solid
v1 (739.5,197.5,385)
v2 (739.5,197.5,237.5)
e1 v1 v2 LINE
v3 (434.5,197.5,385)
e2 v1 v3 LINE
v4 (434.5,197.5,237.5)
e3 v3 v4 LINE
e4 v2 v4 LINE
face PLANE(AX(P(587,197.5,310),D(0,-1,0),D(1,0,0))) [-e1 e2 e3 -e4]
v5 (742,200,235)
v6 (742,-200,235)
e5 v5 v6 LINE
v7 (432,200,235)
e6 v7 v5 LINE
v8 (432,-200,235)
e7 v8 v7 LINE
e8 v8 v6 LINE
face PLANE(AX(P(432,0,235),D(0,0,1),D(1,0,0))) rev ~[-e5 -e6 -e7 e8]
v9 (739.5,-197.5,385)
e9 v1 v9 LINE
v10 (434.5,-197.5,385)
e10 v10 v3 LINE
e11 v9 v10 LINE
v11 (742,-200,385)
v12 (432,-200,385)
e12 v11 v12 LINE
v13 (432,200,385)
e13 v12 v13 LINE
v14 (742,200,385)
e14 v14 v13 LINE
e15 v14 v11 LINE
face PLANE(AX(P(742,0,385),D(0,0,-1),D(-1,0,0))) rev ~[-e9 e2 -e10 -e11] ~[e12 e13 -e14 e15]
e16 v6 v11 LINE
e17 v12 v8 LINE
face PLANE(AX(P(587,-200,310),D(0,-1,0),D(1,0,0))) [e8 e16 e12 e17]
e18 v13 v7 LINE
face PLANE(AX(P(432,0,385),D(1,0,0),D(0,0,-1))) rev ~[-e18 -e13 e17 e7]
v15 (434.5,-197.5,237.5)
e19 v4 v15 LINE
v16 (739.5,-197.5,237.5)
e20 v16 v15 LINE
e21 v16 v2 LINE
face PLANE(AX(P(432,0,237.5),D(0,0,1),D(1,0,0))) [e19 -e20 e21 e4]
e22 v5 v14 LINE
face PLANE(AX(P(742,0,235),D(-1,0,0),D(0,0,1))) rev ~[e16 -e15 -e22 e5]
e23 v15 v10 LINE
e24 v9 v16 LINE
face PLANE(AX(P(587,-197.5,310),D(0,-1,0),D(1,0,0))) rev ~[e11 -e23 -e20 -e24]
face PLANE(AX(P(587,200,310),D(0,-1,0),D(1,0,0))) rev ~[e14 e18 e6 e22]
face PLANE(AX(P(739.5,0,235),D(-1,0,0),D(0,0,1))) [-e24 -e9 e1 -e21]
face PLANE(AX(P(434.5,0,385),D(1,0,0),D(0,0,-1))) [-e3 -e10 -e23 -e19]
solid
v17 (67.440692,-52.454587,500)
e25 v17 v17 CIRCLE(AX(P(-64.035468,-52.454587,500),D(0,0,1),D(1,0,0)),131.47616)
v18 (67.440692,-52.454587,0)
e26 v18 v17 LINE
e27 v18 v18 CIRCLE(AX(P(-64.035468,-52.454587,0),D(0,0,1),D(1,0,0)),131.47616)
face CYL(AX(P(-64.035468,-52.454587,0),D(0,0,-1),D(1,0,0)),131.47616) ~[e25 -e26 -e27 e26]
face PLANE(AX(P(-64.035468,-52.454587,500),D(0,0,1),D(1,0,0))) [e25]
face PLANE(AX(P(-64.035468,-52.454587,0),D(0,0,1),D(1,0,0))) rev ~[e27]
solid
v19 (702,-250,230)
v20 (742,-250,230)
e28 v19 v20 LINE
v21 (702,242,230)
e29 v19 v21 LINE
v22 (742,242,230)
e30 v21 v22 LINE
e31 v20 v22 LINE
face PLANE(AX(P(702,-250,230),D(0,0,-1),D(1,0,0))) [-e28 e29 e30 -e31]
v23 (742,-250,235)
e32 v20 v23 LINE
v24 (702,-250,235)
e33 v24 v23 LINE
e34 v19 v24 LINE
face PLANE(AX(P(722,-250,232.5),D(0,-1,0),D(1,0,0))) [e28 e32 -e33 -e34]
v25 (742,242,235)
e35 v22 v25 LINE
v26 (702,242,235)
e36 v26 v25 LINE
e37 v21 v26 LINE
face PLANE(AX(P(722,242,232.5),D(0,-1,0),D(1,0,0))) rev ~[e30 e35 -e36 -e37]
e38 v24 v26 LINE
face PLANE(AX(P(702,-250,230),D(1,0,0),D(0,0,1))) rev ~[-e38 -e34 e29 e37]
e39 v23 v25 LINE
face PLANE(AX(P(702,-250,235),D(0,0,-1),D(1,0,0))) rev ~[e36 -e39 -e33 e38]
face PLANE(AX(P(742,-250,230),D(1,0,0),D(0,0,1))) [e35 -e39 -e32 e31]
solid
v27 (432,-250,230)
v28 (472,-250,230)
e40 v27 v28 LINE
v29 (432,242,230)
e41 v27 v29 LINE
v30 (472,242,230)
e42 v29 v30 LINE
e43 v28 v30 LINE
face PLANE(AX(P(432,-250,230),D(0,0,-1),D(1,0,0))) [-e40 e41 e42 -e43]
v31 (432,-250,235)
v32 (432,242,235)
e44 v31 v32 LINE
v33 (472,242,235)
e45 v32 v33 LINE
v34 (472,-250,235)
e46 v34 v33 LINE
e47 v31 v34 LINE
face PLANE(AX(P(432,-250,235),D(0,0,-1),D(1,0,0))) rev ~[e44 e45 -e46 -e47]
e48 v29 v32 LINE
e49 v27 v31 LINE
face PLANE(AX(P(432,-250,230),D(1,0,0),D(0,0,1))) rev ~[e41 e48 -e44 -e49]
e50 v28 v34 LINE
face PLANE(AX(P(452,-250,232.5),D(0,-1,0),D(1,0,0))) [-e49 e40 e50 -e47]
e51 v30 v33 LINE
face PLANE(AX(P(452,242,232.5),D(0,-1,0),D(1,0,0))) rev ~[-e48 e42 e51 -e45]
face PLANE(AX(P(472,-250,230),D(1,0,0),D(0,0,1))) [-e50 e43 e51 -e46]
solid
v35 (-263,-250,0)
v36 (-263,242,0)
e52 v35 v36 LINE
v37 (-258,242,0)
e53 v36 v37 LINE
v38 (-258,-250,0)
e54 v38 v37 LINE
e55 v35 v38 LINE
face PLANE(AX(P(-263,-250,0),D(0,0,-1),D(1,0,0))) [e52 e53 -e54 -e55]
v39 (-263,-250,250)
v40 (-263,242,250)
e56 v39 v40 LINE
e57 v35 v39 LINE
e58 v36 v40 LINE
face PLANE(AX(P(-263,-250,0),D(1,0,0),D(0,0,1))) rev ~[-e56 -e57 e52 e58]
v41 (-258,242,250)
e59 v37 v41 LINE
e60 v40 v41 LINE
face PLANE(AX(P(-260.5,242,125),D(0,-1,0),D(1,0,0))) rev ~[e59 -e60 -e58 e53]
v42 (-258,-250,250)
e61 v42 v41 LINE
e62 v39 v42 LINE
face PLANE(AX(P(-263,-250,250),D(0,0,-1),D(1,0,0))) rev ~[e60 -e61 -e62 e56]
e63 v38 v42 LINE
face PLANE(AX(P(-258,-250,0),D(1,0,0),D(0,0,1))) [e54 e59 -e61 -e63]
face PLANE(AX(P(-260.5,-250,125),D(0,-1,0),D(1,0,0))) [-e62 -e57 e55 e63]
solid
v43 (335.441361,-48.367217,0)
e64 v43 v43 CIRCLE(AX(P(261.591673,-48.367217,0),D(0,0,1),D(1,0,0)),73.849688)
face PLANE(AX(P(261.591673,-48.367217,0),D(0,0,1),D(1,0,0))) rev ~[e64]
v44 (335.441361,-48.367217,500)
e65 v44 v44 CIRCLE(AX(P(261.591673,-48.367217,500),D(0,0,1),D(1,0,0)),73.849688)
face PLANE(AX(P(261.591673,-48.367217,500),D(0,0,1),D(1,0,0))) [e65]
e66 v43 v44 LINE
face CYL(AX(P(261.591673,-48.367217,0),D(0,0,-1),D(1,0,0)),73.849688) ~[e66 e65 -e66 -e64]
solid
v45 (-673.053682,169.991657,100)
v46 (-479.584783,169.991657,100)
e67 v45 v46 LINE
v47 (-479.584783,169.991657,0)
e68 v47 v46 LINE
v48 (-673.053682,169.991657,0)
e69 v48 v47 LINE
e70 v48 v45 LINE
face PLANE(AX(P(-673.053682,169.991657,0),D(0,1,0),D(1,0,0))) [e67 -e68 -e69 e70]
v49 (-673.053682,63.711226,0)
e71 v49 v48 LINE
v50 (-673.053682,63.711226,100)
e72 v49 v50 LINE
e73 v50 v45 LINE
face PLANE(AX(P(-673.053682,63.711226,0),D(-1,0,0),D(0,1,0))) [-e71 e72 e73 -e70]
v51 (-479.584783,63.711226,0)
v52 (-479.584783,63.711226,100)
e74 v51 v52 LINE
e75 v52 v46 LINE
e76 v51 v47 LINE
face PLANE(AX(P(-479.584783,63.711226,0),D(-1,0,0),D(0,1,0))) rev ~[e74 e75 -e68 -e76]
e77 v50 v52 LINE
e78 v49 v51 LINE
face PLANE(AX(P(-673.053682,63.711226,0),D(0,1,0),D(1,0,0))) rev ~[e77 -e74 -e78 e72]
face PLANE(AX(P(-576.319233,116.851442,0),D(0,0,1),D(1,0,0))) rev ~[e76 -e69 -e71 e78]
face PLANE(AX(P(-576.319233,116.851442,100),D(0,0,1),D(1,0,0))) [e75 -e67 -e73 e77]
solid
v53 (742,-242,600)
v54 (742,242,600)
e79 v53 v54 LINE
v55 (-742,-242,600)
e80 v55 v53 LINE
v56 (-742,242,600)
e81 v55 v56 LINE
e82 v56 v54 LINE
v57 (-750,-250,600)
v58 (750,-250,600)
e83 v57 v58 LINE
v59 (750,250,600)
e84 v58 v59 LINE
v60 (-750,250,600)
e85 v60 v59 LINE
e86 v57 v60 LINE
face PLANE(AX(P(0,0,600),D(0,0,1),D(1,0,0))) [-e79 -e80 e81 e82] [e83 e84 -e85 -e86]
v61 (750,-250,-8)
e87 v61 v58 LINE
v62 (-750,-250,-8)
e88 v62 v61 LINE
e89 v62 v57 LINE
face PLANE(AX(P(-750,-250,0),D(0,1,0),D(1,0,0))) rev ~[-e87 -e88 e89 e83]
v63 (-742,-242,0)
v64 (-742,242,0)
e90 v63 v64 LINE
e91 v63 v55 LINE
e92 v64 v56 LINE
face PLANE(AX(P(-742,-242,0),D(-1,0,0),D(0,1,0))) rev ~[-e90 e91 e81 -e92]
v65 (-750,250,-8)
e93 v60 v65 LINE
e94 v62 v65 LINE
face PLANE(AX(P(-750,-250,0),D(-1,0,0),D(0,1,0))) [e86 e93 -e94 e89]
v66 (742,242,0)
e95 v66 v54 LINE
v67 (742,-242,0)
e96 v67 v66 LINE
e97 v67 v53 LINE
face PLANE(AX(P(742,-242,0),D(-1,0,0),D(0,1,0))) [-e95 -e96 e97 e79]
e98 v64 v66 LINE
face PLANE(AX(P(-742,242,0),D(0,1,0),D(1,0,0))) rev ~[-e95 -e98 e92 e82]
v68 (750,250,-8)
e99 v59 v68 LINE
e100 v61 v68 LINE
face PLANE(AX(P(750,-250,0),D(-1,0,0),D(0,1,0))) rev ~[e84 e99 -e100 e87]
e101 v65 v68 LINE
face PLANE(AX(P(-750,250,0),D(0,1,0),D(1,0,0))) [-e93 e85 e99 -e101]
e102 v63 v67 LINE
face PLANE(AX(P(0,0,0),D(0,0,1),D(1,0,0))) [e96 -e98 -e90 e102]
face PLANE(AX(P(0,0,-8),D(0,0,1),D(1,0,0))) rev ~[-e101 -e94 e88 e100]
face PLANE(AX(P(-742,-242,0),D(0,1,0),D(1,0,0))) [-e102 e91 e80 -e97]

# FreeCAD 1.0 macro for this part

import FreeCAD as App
import Part
import Sketcher
Q = App.Units.Quantity


def faces_at(feature, points):
    """Names of the faces that lie closest to the given points."""
    faces = feature.Shape.Faces
    near = lambda p: min(range(len(faces)), key=lambda i: faces[i].distToShape(Part.Vertex(*p))[0])
    return sorted({f"Face{near(p) + 1}" for p in points})

doc = App.newDocument("Part")
body = doc.addObject("PartDesign::Body", "Body")

sketch1 = doc.addObject("Sketcher::SketchObject", "Sketch")
body.addObject(sketch1)
sketch1.AttachmentSupport = (doc.XY_Plane, [""])
sketch1.MapMode = "FlatFace"
sketch1.addGeometry([
    Part.LineSegment(App.Vector(-750, 250, 0), App.Vector(-750, -250, 0)),
    Part.LineSegment(App.Vector(-750, -250, 0), App.Vector(750, -250, 0)),
    Part.LineSegment(App.Vector(750, -250, 0), App.Vector(750, 250, 0)),
    Part.LineSegment(App.Vector(750, 250, 0), App.Vector(-750, 250, 0)),
], False)
sketch1.addConstraint([
    Sketcher.Constraint("Coincident", 0, 2, 1, 1),
    Sketcher.Constraint("Coincident", 1, 2, 2, 1),
    Sketcher.Constraint("Coincident", 2, 2, 3, 1),
    Sketcher.Constraint("Coincident", 3, 2, 0, 1),
    Sketcher.Constraint("Vertical", 0),
    Sketcher.Constraint("Horizontal", 1),
    Sketcher.Constraint("Vertical", 2),
    Sketcher.Constraint("Horizontal", 3),
    Sketcher.Constraint("Symmetric", 0, 2, 2, 2, -1, 1),
    Sketcher.Constraint("DistanceX", 1, 1, 1, 2, Q("1500 mm")),
    Sketcher.Constraint("DistanceY", 0, 2, 0, 1, Q("500 mm")),
])
pad1 = doc.addObject("PartDesign::Pad", "Pad")
body.addObject(pad1)
pad1.Profile = sketch1
pad1.Length = 8
pad1.Reversed = True
body2 = doc.addObject("PartDesign::Body", "Body001")

sketch2 = doc.addObject("Sketcher::SketchObject", "Sketch001")
body2.addObject(sketch2)
sketch2.AttachmentSupport = (doc.getObject("XY_Plane001"), [""])
sketch2.MapMode = "FlatFace"
sketch2.addGeometry([
    Part.LineSegment(App.Vector(-750, 250, 0), App.Vector(-750, -250, 0)),
    Part.LineSegment(App.Vector(-750, -250, 0), App.Vector(750, -250, 0)),
    Part.LineSegment(App.Vector(750, -250, 0), App.Vector(750, 250, 0)),
    Part.LineSegment(App.Vector(750, 250, 0), App.Vector(-750, 250, 0)),
    Part.LineSegment(App.Vector(742, -242, 0), App.Vector(-742, -242, 0)),
    Part.LineSegment(App.Vector(-742, -242, 0), App.Vector(-742, 242, 0)),
    Part.LineSegment(App.Vector(-742, 242, 0), App.Vector(742, 242, 0)),
    Part.LineSegment(App.Vector(742, 242, 0), App.Vector(742, -242, 0)),
], False)
sketch2.addConstraint([
    Sketcher.Constraint("Coincident", 0, 2, 1, 1),
    Sketcher.Constraint("Coincident", 1, 2, 2, 1),
    Sketcher.Constraint("Coincident", 2, 2, 3, 1),
    Sketcher.Constraint("Coincident", 3, 2, 0, 1),
    Sketcher.Constraint("Coincident", 4, 2, 5, 1),
    Sketcher.Constraint("Coincident", 5, 2, 6, 1),
    Sketcher.Constraint("Coincident", 6, 2, 7, 1),
    Sketcher.Constraint("Coincident", 7, 2, 4, 1),
    Sketcher.Constraint("Vertical", 0),
    Sketcher.Constraint("Horizontal", 1),
    Sketcher.Constraint("Vertical", 2),
    Sketcher.Constraint("Horizontal", 3),
    Sketcher.Constraint("Horizontal", 4),
    Sketcher.Constraint("Vertical", 5),
    Sketcher.Constraint("Horizontal", 6),
    Sketcher.Constraint("Vertical", 7),
    Sketcher.Constraint("Symmetric", 0, 2, 2, 2, -1, 1),
    Sketcher.Constraint("Symmetric", 4, 2, 6, 2, -1, 1),
    Sketcher.Constraint("DistanceX", 1, 1, 1, 2, Q("1500 mm")),
    Sketcher.Constraint("DistanceX", 4, 2, 4, 1, Q("1484 mm")),
    Sketcher.Constraint("DistanceY", 0, 2, 0, 1, Q("500 mm")),
    Sketcher.Constraint("DistanceY", 5, 1, 5, 2, Q("484 mm")),
])
pad2 = doc.addObject("PartDesign::Pad", "Pad001")
body2.addObject(pad2)
pad2.Profile = sketch2
pad2.Length = 600
doc.recompute()

boolean = doc.addObject("PartDesign::Boolean", "Boolean")
body.addObject(boolean)
boolean.Type = "Fuse"
boolean.addObjects([body2])
body3 = doc.addObject("PartDesign::Body", "Body002")

sketch3 = doc.addObject("Sketcher::SketchObject", "Sketch002")
body3.addObject(sketch3)
sketch3.AttachmentSupport = (doc.getObject("XZ_Plane002"), [""])
sketch3.MapMode = "FlatFace"
sketch3.AttachmentOffset = App.Placement(App.Vector(0, 0, 250), App.Rotation())
sketch3.addGeometry([
    Part.LineSegment(App.Vector(-263, 250, 0), App.Vector(-263, 0, 0)),
    Part.LineSegment(App.Vector(-263, 0, 0), App.Vector(-258, 0, 0)),
    Part.LineSegment(App.Vector(-258, 0, 0), App.Vector(-258, 250, 0)),
    Part.LineSegment(App.Vector(-258, 250, 0), App.Vector(-263, 250, 0)),
], False)
sketch3.addConstraint([
    Sketcher.Constraint("Coincident", 0, 2, 1, 1),
    Sketcher.Constraint("Coincident", 1, 2, 2, 1),
    Sketcher.Constraint("Coincident", 2, 2, 3, 1),
    Sketcher.Constraint("Coincident", 3, 2, 0, 1),
    Sketcher.Constraint("Vertical", 0),
    Sketcher.Constraint("Horizontal", 1),
    Sketcher.Constraint("Vertical", 2),
    Sketcher.Constraint("Horizontal", 3),
    Sketcher.Constraint("PointOnObject", 0, 2, -1),
    Sketcher.Constraint("DistanceX", 1, 1, 1, 2, Q("5 mm")),
    Sketcher.Constraint("DistanceY", 0, 2, 0, 1, Q("250 mm")),
    Sketcher.Constraint("DistanceX", 0, 2, -1, 1, Q("263 mm")),
])
pad3 = doc.addObject("PartDesign::Pad", "Pad002")
body3.addObject(pad3)
pad3.Profile = sketch3
pad3.Length = 492
pad3.Reversed = True
body4 = doc.addObject("PartDesign::Body", "Body003")

sketch4 = doc.addObject("Sketcher::SketchObject", "Sketch003")
body4.addObject(sketch4)
sketch4.AttachmentSupport = (doc.getObject("XZ_Plane003"), [""])
sketch4.MapMode = "FlatFace"
sketch4.AttachmentOffset = App.Placement(App.Vector(0, 0, 250), App.Rotation())
sketch4.addGeometry([
    Part.LineSegment(App.Vector(702, 235, 0), App.Vector(702, 230, 0)),
    Part.LineSegment(App.Vector(702, 230, 0), App.Vector(742, 230, 0)),
    Part.LineSegment(App.Vector(742, 230, 0), App.Vector(742, 235, 0)),
    Part.LineSegment(App.Vector(742, 235, 0), App.Vector(702, 235, 0)),
], False)
sketch4.addConstraint([
    Sketcher.Constraint("Coincident", 0, 2, 1, 1),
    Sketcher.Constraint("Coincident", 1, 2, 2, 1),
    Sketcher.Constraint("Coincident", 2, 2, 3, 1),
    Sketcher.Constraint("Coincident", 3, 2, 0, 1),
    Sketcher.Constraint("Vertical", 0),
    Sketcher.Constraint("Horizontal", 1),
    Sketcher.Constraint("Vertical", 2),
    Sketcher.Constraint("Horizontal", 3),
    Sketcher.Constraint("DistanceX", 1, 1, 1, 2, Q("40 mm")),
    Sketcher.Constraint("DistanceY", 0, 2, 0, 1, Q("5 mm")),
    Sketcher.Constraint("DistanceX", -1, 1, 0, 2, Q("702 mm")),
    Sketcher.Constraint("DistanceY", -1, 1, 0, 2, Q("230 mm")),
])
pad4 = doc.addObject("PartDesign::Pad", "Pad003")
body4.addObject(pad4)
pad4.Profile = sketch4
pad4.Length = 492
pad4.Reversed = True
body5 = doc.addObject("PartDesign::Body", "Body004")

sketch5 = doc.addObject("Sketcher::SketchObject", "Sketch004")
body5.addObject(sketch5)
sketch5.AttachmentSupport = (doc.getObject("XZ_Plane004"), [""])
sketch5.MapMode = "FlatFace"
sketch5.AttachmentOffset = App.Placement(App.Vector(0, 0, 250), App.Rotation())
sketch5.addGeometry([
    Part.LineSegment(App.Vector(432, 235, 0), App.Vector(432, 230, 0)),
    Part.LineSegment(App.Vector(432, 230, 0), App.Vector(472, 230, 0)),
    Part.LineSegment(App.Vector(472, 230, 0), App.Vector(472, 235, 0)),
    Part.LineSegment(App.Vector(472, 235, 0), App.Vector(432, 235, 0)),
], False)
sketch5.addConstraint([
    Sketcher.Constraint("Coincident", 0, 2, 1, 1),
    Sketcher.Constraint("Coincident", 1, 2, 2, 1),
    Sketcher.Constraint("Coincident", 2, 2, 3, 1),
    Sketcher.Constraint("Coincident", 3, 2, 0, 1),
    Sketcher.Constraint("Vertical", 0),
    Sketcher.Constraint("Horizontal", 1),
    Sketcher.Constraint("Vertical", 2),
    Sketcher.Constraint("Horizontal", 3),
    Sketcher.Constraint("DistanceX", 1, 1, 1, 2, Q("40 mm")),
    Sketcher.Constraint("DistanceY", 0, 2, 0, 1, Q("5 mm")),
    Sketcher.Constraint("DistanceX", -1, 1, 0, 2, Q("432 mm")),
    Sketcher.Constraint("DistanceY", -1, 1, 0, 2, Q("230 mm")),
])
pad5 = doc.addObject("PartDesign::Pad", "Pad004")
body5.addObject(pad5)
pad5.Profile = sketch5
pad5.Length = 492
pad5.Reversed = True
body6 = doc.addObject("PartDesign::Body", "Body005")

sketch6 = doc.addObject("Sketcher::SketchObject", "Sketch005")
body6.addObject(sketch6)
sketch6.AttachmentSupport = (doc.getObject("XZ_Plane005"), [""])
sketch6.MapMode = "FlatFace"
sketch6.addGeometry([
    Part.LineSegment(App.Vector(432, 235, 0), App.Vector(742, 235, 0)),
    Part.LineSegment(App.Vector(742, 235, 0), App.Vector(742, 385, 0)),
    Part.LineSegment(App.Vector(742, 385, 0), App.Vector(432, 385, 0)),
    Part.LineSegment(App.Vector(432, 385, 0), App.Vector(432, 235, 0)),
], False)
sketch6.addConstraint([
    Sketcher.Constraint("Coincident", 0, 2, 1, 1),
    Sketcher.Constraint("Coincident", 1, 2, 2, 1),
    Sketcher.Constraint("Coincident", 2, 2, 3, 1),
    Sketcher.Constraint("Coincident", 3, 2, 0, 1),
    Sketcher.Constraint("Horizontal", 0),
    Sketcher.Constraint("Vertical", 1),
    Sketcher.Constraint("Horizontal", 2),
    Sketcher.Constraint("Vertical", 3),
    Sketcher.Constraint("DistanceX", 0, 1, 0, 2, Q("310 mm")),
    Sketcher.Constraint("DistanceY", 1, 1, 1, 2, Q("150 mm")),
    Sketcher.Constraint("DistanceX", -1, 1, 0, 2, Q("742 mm")),
    Sketcher.Constraint("DistanceY", -1, 1, 0, 2, Q("235 mm")),
])
pad6 = doc.addObject("PartDesign::Pad", "Pad005")
body6.addObject(pad6)
pad6.Profile = sketch6
pad6.Type = "TwoLengths"
pad6.Length = 200
pad6.Length2 = 200
pad6.Reversed = True
doc.recompute()

thickness = doc.addObject("PartDesign::Thickness", "Thickness")
body6.addObject(thickness)
thickness.Base = (pad6, faces_at(pad6, [(587, 0, 385)]))
thickness.Value = 2.5
thickness.Reversed = True
thickness.Join = "Arc"
body7 = doc.addObject("PartDesign::Body", "Body006")

sketch7 = doc.addObject("Sketcher::SketchObject", "Sketch006")
body7.addObject(sketch7)
sketch7.AttachmentSupport = (doc.getObject("XY_Plane006"), [""])
sketch7.MapMode = "FlatFace"
sketch7.addGeometry(Part.Circle(App.Vector(-64, -52, 0), App.Vector(0, 0, 1), 131), False)
sketch7.addConstraint([
    Sketcher.Constraint("Diameter", 0, Q("262.952321 mm")),
    Sketcher.Constraint("DistanceX", 0, 3, -1, 1, Q("64.035468 mm")),
    Sketcher.Constraint("DistanceY", 0, 3, -1, 1, Q("52.454587 mm")),
])
pad7 = doc.addObject("PartDesign::Pad", "Pad006")
body7.addObject(pad7)
pad7.Profile = sketch7
pad7.Length = 500
body8 = doc.addObject("PartDesign::Body", "Body007")

sketch8 = doc.addObject("Sketcher::SketchObject", "Sketch007")
body8.addObject(sketch8)
sketch8.AttachmentSupport = (doc.getObject("XY_Plane007"), [""])
sketch8.MapMode = "FlatFace"
sketch8.addGeometry(Part.Circle(App.Vector(262, -48, 0), App.Vector(0, 0, 1), 74), False)
sketch8.addConstraint([
    Sketcher.Constraint("Diameter", 0, Q("147.699375 mm")),
    Sketcher.Constraint("DistanceX", -1, 1, 0, 3, Q("261.591673 mm")),
    Sketcher.Constraint("DistanceY", 0, 3, -1, 1, Q("48.367217 mm")),
])
pad8 = doc.addObject("PartDesign::Pad", "Pad007")
body8.addObject(pad8)
pad8.Profile = sketch8
pad8.Length = 500
body9 = doc.addObject("PartDesign::Body", "Body008")

sketch9 = doc.addObject("Sketcher::SketchObject", "Sketch008")
body9.addObject(sketch9)
sketch9.AttachmentSupport = (doc.getObject("XY_Plane008"), [""])
sketch9.MapMode = "FlatFace"
sketch9.addGeometry([
    Part.LineSegment(App.Vector(-673, 170, 0), App.Vector(-673, 64, 0)),
    Part.LineSegment(App.Vector(-673, 64, 0), App.Vector(-480, 64, 0)),
    Part.LineSegment(App.Vector(-480, 64, 0), App.Vector(-480, 170, 0)),
    Part.LineSegment(App.Vector(-480, 170, 0), App.Vector(-673, 170, 0)),
], False)
sketch9.addConstraint([
    Sketcher.Constraint("Coincident", 0, 2, 1, 1),
    Sketcher.Constraint("Coincident", 1, 2, 2, 1),
    Sketcher.Constraint("Coincident", 2, 2, 3, 1),
    Sketcher.Constraint("Coincident", 3, 2, 0, 1),
    Sketcher.Constraint("Vertical", 0),
    Sketcher.Constraint("Horizontal", 1),
    Sketcher.Constraint("Vertical", 2),
    Sketcher.Constraint("Horizontal", 3),
    Sketcher.Constraint("DistanceX", 1, 1, 1, 2, Q("193.468899 mm")),
    Sketcher.Constraint("DistanceY", 0, 2, 0, 1, Q("106.280431 mm")),
    Sketcher.Constraint("DistanceX", 0, 2, -1, 1, Q("673.053682 mm")),
    Sketcher.Constraint("DistanceY", -1, 1, 0, 2, Q("63.711226 mm")),
])
pad9 = doc.addObject("PartDesign::Pad", "Pad008")
body9.addObject(pad9)
pad9.Profile = sketch9
pad9.Length = 100

doc.recompute()
